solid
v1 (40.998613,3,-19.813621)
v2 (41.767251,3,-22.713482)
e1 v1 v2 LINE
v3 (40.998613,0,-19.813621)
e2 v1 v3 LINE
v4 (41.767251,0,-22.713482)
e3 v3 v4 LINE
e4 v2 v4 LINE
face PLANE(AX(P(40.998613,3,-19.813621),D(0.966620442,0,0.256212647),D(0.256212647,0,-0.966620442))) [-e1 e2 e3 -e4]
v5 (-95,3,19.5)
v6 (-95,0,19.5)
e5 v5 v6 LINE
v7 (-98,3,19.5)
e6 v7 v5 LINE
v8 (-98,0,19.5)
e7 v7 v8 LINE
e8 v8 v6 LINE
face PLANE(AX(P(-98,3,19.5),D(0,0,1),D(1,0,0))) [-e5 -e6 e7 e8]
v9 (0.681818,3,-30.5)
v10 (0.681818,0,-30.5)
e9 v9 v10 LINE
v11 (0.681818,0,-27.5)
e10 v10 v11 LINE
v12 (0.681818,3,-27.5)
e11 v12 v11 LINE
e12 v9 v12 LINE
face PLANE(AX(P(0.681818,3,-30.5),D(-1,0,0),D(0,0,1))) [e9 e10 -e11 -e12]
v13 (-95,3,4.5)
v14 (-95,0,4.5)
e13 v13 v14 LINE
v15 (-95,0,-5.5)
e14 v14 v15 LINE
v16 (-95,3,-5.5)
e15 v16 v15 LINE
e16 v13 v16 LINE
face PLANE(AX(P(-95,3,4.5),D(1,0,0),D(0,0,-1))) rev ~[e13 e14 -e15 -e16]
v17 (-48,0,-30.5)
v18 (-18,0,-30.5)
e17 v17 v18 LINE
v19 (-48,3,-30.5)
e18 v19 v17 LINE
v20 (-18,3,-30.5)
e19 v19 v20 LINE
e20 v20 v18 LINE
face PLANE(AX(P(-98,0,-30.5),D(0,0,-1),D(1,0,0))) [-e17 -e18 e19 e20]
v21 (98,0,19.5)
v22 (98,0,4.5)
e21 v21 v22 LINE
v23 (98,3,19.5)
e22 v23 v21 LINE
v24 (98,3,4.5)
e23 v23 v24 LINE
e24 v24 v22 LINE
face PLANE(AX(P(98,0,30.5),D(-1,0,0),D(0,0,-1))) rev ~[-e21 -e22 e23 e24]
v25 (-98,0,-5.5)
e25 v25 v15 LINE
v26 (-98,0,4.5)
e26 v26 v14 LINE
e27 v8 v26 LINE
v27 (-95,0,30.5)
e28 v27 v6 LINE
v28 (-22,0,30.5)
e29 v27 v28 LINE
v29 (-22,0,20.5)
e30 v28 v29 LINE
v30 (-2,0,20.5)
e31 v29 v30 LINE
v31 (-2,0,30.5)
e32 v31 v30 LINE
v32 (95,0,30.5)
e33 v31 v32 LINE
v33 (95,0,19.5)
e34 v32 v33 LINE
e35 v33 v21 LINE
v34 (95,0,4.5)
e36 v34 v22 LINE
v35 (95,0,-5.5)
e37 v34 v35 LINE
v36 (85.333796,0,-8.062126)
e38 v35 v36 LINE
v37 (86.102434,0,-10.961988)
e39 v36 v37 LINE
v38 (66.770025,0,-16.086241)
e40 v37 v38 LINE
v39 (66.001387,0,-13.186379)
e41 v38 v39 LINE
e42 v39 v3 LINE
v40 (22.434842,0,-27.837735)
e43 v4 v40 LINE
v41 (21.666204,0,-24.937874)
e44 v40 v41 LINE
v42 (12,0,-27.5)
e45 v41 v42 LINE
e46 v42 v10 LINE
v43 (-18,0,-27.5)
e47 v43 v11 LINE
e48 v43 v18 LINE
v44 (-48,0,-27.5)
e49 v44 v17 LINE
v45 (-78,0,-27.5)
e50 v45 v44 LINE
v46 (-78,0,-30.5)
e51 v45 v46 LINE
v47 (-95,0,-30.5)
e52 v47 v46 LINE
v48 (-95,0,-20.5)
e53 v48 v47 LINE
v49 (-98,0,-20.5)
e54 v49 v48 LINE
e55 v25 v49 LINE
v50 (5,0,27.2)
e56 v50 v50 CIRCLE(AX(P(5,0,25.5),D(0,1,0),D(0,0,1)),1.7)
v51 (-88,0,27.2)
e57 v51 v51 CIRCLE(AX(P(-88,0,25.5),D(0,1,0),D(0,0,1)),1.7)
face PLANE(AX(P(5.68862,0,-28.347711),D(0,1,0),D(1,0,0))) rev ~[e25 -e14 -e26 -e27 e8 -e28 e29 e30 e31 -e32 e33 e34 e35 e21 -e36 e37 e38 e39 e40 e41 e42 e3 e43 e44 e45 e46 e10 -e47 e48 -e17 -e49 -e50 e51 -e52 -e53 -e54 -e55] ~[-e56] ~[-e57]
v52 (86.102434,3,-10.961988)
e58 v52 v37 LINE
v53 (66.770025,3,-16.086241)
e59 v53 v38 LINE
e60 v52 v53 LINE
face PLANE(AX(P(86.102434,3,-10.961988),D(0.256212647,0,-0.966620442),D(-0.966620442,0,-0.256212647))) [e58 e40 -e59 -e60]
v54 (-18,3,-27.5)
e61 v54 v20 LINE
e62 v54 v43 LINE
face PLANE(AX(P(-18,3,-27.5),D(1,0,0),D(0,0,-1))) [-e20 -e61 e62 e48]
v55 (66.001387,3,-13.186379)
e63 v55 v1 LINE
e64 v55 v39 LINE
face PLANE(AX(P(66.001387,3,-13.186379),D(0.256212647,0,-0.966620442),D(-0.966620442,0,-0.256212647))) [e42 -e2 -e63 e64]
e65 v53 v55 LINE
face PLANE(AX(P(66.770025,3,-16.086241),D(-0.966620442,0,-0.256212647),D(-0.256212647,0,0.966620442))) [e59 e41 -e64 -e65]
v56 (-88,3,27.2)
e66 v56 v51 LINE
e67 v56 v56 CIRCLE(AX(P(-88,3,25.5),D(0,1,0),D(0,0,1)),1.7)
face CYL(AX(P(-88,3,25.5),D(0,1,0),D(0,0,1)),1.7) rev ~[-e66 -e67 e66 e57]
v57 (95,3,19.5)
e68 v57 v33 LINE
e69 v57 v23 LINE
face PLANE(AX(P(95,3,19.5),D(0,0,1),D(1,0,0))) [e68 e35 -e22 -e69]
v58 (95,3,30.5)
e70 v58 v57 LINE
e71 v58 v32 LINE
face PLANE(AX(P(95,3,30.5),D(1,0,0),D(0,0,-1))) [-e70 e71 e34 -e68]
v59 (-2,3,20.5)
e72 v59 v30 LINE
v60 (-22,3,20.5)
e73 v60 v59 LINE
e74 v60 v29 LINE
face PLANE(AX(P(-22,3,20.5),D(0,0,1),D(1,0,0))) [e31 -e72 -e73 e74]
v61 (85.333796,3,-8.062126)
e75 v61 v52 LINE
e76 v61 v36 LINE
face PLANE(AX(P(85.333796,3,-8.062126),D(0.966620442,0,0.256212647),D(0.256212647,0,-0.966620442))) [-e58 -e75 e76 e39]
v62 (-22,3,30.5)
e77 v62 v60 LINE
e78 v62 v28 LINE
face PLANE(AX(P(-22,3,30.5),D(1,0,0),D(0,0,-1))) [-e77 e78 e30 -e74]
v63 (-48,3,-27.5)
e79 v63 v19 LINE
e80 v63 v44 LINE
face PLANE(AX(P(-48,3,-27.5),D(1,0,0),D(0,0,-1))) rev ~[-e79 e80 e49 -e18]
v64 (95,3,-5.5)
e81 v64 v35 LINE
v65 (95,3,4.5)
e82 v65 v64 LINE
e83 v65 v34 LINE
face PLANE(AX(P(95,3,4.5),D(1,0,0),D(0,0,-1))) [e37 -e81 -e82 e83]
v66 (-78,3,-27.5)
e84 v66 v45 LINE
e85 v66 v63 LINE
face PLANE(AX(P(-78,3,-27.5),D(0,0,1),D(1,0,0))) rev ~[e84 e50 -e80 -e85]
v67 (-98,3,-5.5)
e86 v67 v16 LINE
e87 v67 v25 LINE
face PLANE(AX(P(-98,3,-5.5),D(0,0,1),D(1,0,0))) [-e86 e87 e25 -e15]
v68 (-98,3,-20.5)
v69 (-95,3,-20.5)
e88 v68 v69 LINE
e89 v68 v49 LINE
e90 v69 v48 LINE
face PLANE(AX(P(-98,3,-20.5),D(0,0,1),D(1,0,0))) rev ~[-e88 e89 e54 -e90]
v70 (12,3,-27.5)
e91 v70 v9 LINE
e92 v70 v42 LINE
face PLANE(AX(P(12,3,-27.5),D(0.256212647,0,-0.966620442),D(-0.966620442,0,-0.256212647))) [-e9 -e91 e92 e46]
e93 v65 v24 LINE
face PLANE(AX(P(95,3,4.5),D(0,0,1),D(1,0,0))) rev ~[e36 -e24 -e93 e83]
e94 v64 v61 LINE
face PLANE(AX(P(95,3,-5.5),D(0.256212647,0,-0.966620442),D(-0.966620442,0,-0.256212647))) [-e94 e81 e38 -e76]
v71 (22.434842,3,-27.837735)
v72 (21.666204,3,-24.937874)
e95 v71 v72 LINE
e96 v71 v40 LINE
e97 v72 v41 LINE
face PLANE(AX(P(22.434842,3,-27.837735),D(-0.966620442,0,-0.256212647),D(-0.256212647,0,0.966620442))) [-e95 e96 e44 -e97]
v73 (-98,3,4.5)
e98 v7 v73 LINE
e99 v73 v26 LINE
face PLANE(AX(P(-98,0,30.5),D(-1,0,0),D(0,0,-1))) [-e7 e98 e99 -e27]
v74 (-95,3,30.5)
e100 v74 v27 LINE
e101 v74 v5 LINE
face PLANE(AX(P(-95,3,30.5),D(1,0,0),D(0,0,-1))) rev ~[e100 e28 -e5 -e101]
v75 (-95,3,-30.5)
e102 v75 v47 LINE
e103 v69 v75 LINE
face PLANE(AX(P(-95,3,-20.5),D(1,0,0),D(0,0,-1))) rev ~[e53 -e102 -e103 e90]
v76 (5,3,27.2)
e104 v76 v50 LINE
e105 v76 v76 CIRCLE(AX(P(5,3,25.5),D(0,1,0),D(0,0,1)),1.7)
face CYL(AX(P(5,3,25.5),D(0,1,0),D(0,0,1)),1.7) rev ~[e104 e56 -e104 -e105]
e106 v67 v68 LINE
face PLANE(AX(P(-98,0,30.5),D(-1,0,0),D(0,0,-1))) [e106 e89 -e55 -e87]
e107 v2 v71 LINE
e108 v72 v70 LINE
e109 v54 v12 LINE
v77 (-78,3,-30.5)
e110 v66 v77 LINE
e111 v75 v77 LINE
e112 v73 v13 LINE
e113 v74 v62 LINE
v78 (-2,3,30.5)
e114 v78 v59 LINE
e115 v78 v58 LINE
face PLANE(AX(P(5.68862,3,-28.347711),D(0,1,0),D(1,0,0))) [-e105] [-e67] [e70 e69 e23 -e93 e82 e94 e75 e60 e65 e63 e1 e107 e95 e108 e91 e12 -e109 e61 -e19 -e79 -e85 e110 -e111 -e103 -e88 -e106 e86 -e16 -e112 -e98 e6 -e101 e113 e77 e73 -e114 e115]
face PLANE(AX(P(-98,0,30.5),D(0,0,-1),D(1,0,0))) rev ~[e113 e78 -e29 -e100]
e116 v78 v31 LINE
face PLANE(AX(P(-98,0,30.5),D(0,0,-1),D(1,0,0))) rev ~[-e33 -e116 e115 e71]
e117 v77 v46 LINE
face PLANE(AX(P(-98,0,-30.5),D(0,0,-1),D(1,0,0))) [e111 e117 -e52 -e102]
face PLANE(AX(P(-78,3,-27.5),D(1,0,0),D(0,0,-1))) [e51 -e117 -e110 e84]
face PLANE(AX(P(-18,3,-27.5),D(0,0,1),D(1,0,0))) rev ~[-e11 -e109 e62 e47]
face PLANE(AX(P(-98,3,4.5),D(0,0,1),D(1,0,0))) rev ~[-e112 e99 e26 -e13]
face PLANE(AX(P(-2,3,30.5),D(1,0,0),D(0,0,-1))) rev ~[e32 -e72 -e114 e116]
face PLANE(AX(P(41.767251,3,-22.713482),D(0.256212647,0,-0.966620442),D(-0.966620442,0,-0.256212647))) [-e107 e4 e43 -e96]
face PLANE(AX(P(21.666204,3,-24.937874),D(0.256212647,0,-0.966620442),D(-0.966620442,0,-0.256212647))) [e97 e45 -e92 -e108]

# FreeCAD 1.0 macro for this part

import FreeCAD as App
import Part
import Sketcher
from FreeCAD import Vector
Q = App.Units.Quantity


def add_polygon(sketch, points):
    """Adds a closed chain of lines whose ends are joined by coincident constraints."""
    first, n = sketch.GeometryCount, len(points)
    for a, b in zip(points, points[1:] + points[:1]):
        sketch.addGeometry(Part.LineSegment(App.Vector(*a, 0), App.Vector(*b, 0)), False)
    for i in range(n):
        sketch.addConstraint(Sketcher.Constraint("Coincident", first + i, 2, first + (i + 1) % n, 1))

doc = App.newDocument("Part")
body = doc.addObject("PartDesign::Body", "Body")

sketch1 = body.newObject("Sketcher::SketchObject", "Sketch")
sketch1.AttachmentSupport = (doc.getObject("XZ_Plane"), [""])
sketch1.MapMode = "FlatFace"
add_polygon(sketch1, [(-98, -30), (-98, 30), (98, 30), (98, -30)])
sketch1.addConstraint([
    Sketcher.Constraint("Vertical", 0),
    Sketcher.Constraint("Horizontal", 1),
    Sketcher.Constraint("Vertical", 2),
    Sketcher.Constraint("Horizontal", 3),
    Sketcher.Constraint("Symmetric", 0, 2, 2, 2, -1, 1),
    Sketcher.Constraint("DistanceX", 1, 1, 1, 2, Q("196 mm")),
    Sketcher.Constraint("DistanceY", 0, 1, 0, 2, Q("61 mm")),
])
pad1 = body.newObject("PartDesign::Pad", "Pad")
pad1.Profile = sketch1
pad1.Length = 3
pad1.Reversed = True

sketch2 = body.newObject("Sketcher::SketchObject", "Sketch001")
sketch2.AttachmentSupport = (doc.getObject("XZ_Plane"), [""])
sketch2.MapMode = "FlatFace"
sketch2.AttachmentOffset = App.Placement(Vector(0, 0, -3), App.Rotation())
sketch2.addGeometry(Part.Circle(Vector(-88, 25.5, 0), Vector(0, 0, 1), 1.7), False)
sketch2.addGeometry(Part.Circle(Vector(5, 25.5, 0), Vector(0, 0, 1), 1.7), False)
add_polygon(sketch2, [(-98, -30.5), (-98, -20.5), (-95, -20.5), (-95, -30.5)])
add_polygon(sketch2, [(-98, -5.5), (-98, 4.5), (-95, 4.5), (-95, -5.5)])
add_polygon(sketch2, [(-98, 19.5), (-98, 30.5), (-95, 30.5), (-95, 19.5)])
add_polygon(sketch2, [(95, -5.5), (95, 4.5), (98, 4.5), (98, -5.5)])
add_polygon(sketch2, [(95, 19.5), (95, 30.5), (98, 30.5), (98, 19.5)])
add_polygon(sketch2, [(42, -30.5), (42, -27.5), (72, -27.5), (72, -30.5)])
add_polygon(sketch2, [(-22, 20.5), (-22, 30.5), (-2, 30.5), (-2, 20.5)])
add_polygon(sketch2, [(-78, -30.5), (-78, -27.5), (-48, -27.5), (-48, -30.5)])
add_polygon(sketch2, [(-18, -30.5), (-18, -27.5), (12, -27.5), (12, -30.5)])
add_polygon(sketch2, [(95, -30.5), (95, -20.5), (98, -20.5), (98, -30.5)])
sketch2.addConstraint([
    Sketcher.Constraint("Vertical", 2),
    Sketcher.Constraint("Horizontal", 3),
    Sketcher.Constraint("Vertical", 4),
    Sketcher.Constraint("Horizontal", 5),
    Sketcher.Constraint("Vertical", 6),
    Sketcher.Constraint("Horizontal", 7),
    Sketcher.Constraint("Vertical", 8),
    Sketcher.Constraint("Horizontal", 9),
    Sketcher.Constraint("Vertical", 10),
    Sketcher.Constraint("Horizontal", 11),
    Sketcher.Constraint("Vertical", 12),
    Sketcher.Constraint("Horizontal", 13),
    Sketcher.Constraint("Vertical", 14),
    Sketcher.Constraint("Horizontal", 15),
    Sketcher.Constraint("Vertical", 16),
    Sketcher.Constraint("Horizontal", 17),
    Sketcher.Constraint("Vertical", 18),
    Sketcher.Constraint("Horizontal", 19),
    Sketcher.Constraint("Vertical", 20),
    Sketcher.Constraint("Horizontal", 21),
    Sketcher.Constraint("Vertical", 22),
    Sketcher.Constraint("Horizontal", 23),
    Sketcher.Constraint("Vertical", 24),
    Sketcher.Constraint("Horizontal", 25),
    Sketcher.Constraint("Vertical", 26),
    Sketcher.Constraint("Horizontal", 27),
    Sketcher.Constraint("Vertical", 28),
    Sketcher.Constraint("Horizontal", 29),
    Sketcher.Constraint("Vertical", 30),
    Sketcher.Constraint("Horizontal", 31),
    Sketcher.Constraint("Vertical", 32),
    Sketcher.Constraint("Horizontal", 33),
    Sketcher.Constraint("Vertical", 34),
    Sketcher.Constraint("Horizontal", 35),
    Sketcher.Constraint("Vertical", 36),
    Sketcher.Constraint("Horizontal", 37),
    Sketcher.Constraint("Vertical", 38),
    Sketcher.Constraint("Horizontal", 39),
    Sketcher.Constraint("Vertical", 40),
    Sketcher.Constraint("Horizontal", 41),
    Sketcher.Constraint("Equal", 0, 1),
    Sketcher.Constraint("Symmetric", 4, 2, 18, 2, -1, 1),
    Sketcher.Constraint("Symmetric", 10, 2, 40, 2, -1, 1),
    Sketcher.Constraint("Symmetric", 7, 2, 14, 2, -2),
    Sketcher.Constraint("Symmetric", 9, 2, 16, 2, -2),
    Sketcher.Constraint("Symmetric", 11, 2, 18, 2, -2),
    Sketcher.Constraint("Symmetric", 13, 2, 20, 2, -2),
    Sketcher.Constraint("Symmetric", 3, 2, 38, 2, -2),
    Sketcher.Constraint("Horizontal", 0, 3, 1, 3),
    Sketcher.Constraint("Horizontal", 5, 2, 24, 2),
    Sketcher.Constraint("Horizontal", 19, 2, 26, 2),
    Sketcher.Constraint("Horizontal", 23, 2, 30, 2),
    Sketcher.Constraint("Horizontal", 25, 2, 32, 2),
    Sketcher.Constraint("Horizontal", 31, 2, 34, 2),
    Sketcher.Constraint("Horizontal", 33, 2, 36, 2),
    Sketcher.Constraint("Vertical", 5, 2, 6, 2),
    Sketcher.Constraint("Vertical", 4, 2, 7, 2),
    Sketcher.Constraint("Vertical", 9, 2, 10, 2),
    Sketcher.Constraint("Equal", 25, 31),
    Sketcher.Constraint("Equal", 33, 35),
    Sketcher.Constraint("Equal", 4, 6),
    Sketcher.Constraint("Equal", 41, 22),
    Sketcher.Constraint("Equal", 16, 26),
    Sketcher.Constraint("Diameter", 0, Q("3.4 mm")),
    Sketcher.Constraint("DistanceX", 3, 1, 3, 2, Q("3 mm")),
    Sketcher.Constraint("DistanceX", 23, 1, 23, 2, Q("30 mm")),
    Sketcher.Constraint("DistanceX", 27, 1, 27, 2, Q("20 mm")),
    Sketcher.Constraint("DistanceY", 2, 1, 2, 2, Q("10 mm")),
    Sketcher.Constraint("DistanceY", 10, 1, 10, 2, Q("11 mm")),
    Sketcher.Constraint("DistanceX", 0, 3, -1, 1, Q("88 mm")),
    Sketcher.Constraint("DistanceX", -1, 1, 1, 3, Q("5 mm")),
    Sketcher.Constraint("DistanceX", 2, 2, -1, 1, Q("98 mm")),
    Sketcher.Constraint("DistanceX", -1, 1, 22, 2, Q("42 mm")),
    Sketcher.Constraint("DistanceX", 26, 2, -1, 1, Q("22 mm")),
    Sketcher.Constraint("DistanceX", 30, 2, -1, 1, Q("78 mm")),
    Sketcher.Constraint("DistanceX", 34, 2, -1, 1, Q("18 mm")),
    Sketcher.Constraint("DistanceY", 2, 2, 0, 3, Q("46 mm")),
    Sketcher.Constraint("DistanceY", 6, 2, 0, 3, Q("21 mm")),
    Sketcher.Constraint("DistanceY", 0, 3, 10, 2, Q("5 mm")),
])
pocket1 = body.newObject("PartDesign::Pocket", "Pocket")
pocket1.Profile = sketch2
pocket1.Length = 3
pocket1.Reversed = True

sketch3 = body.newObject("Sketcher::SketchObject", "Sketch002")
sketch3.AttachmentSupport = (doc.getObject("XZ_Plane"), [""])
sketch3.MapMode = "FlatFace"
sketch3.AttachmentOffset = App.Placement(Vector(0, 0, -3), App.Rotation())
add_polygon(sketch3, [(98, -30.5), (12, -30.5), (12, -27.5), (21.7, -24.9), (22.4, -27.8), (41.8, -22.7), (41, -19.8), (66, -13.2), (66.8, -16.1), (86.1, -11), (85.3, -8.1), (95, -5.5), (98, -5.5)])
sketch3.addConstraint([
    Sketcher.Constraint("Horizontal", 0),
    Sketcher.Constraint("Vertical", 1),
    Sketcher.Constraint("Horizontal", 11),
    Sketcher.Constraint("Vertical", 12),
    Sketcher.Constraint("Perpendicular", 2, 3),
    Sketcher.Constraint("Perpendicular", 3, 4),
    Sketcher.Constraint("Perpendicular", 4, 5),
    Sketcher.Constraint("Perpendicular", 5, 6),
    Sketcher.Constraint("Perpendicular", 6, 7),
    Sketcher.Constraint("Perpendicular", 7, 8),
    Sketcher.Constraint("Perpendicular", 8, 9),
    Sketcher.Constraint("Perpendicular", 9, 10),
    Sketcher.Constraint("Equal", 11, 1),
    Sketcher.Constraint("Equal", 3, 5),
    Sketcher.Constraint("Equal", 5, 7),
    Sketcher.Constraint("Equal", 4, 8),
    Sketcher.Constraint("Equal", 7, 9),
    Sketcher.Constraint("Equal", 2, 10),
    Sketcher.Constraint("DistanceX", 0, 2, 0, 1, Q("86 mm")),
    Sketcher.Constraint("DistanceX", 11, 1, 11, 2, Q("3 mm")),
    Sketcher.Constraint("DistanceY", 12, 2, 12, 1, Q("25 mm")),
    Sketcher.Constraint("Distance", 2, Q("10 mm")),
    Sketcher.Constraint("Distance", 3, Q("3 mm")),
    Sketcher.Constraint("Distance", 4, Q("20 mm")),
    Sketcher.Constraint("DistanceX", -1, 1, 0, 2, Q("12 mm")),
    Sketcher.Constraint("DistanceY", 0, 2, -1, 1, Q("30.5 mm")),
])
pocket2 = body.newObject("PartDesign::Pocket", "Pocket001")
pocket2.Profile = sketch3
pocket2.Length = 10
pocket2.Reversed = True

sketch4 = body.newObject("Sketcher::SketchObject", "Sketch003")
sketch4.AttachmentSupport = (doc.getObject("XZ_Plane"), [""])
sketch4.MapMode = "FlatFace"
sketch4.AttachmentOffset = App.Placement(Vector(0, 0, -3), App.Rotation())
add_polygon(sketch4, [(12, -27.5), (0.7, -30.5), (0.7, -27.5)])
sketch4.addConstraint([
    Sketcher.Constraint("Vertical", 1),
    Sketcher.Constraint("Horizontal", 2),
    Sketcher.Constraint("DistanceY", 1, 1, 1, 2, Q("3 mm")),
    Sketcher.Constraint("DistanceX", -1, 1, 2, 2, Q("12 mm")),
    Sketcher.Constraint("DistanceY", 0, 2, -1, 1, Q("30.5 mm")),
    Sketcher.Constraint("DistanceX", 2, 1, 2, 2, Q("11.318182 mm")),
])
pad2 = body.newObject("PartDesign::Pad", "Pad001")
pad2.Profile = sketch4
pad2.Length = 3

doc.recompute()
